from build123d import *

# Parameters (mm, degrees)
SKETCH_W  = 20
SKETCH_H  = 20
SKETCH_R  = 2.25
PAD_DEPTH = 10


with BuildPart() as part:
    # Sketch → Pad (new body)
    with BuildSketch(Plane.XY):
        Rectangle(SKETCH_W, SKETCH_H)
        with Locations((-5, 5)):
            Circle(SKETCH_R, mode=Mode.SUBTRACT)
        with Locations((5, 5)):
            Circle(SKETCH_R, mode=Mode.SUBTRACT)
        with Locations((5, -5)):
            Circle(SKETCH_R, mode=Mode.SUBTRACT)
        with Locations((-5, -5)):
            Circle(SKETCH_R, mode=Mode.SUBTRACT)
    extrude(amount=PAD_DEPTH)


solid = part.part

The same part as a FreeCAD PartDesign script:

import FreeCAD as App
import Part
import Sketcher

V = App.Vector

doc = App.newDocument("Part")
params = doc.addObject("Spreadsheet::Sheet", "Params")
for row, (alias, value) in enumerate([
    ("sketch1_diameter", "4.5 mm"),
    ("sketch1_width", "20 mm"),
    ("pad1_length", "10 mm"),
], start=1):
    params.set(f"A{row}", alias)
    params.set(f"B{row}", "=" + value)
    params.setAlias(f"B{row}", alias)

body = doc.addObject("PartDesign::Body", "Body")

sketch1 = body.newObject("Sketcher::SketchObject", "Sketch")
sketch1.AttachmentSupport = (doc.getObject("XY_Plane"), [""])
sketch1.MapMode = "FlatFace"
sketch1.addGeometry([
    Part.LineSegment(V(-10, 10, 0), V(-10, -10, 0)),
    Part.LineSegment(V(-10, -10, 0), V(10, -10, 0)),
    Part.LineSegment(V(10, -10, 0), V(10, 10, 0)),
    Part.LineSegment(V(10, 10, 0), V(-10, 10, 0)),
    Part.Circle(V(-5, -5, 0), V(0, 0, 1), 2.25),
    Part.Circle(V(5, -5, 0), V(0, 0, 1), 2.25),
    Part.Circle(V(-5, 5, 0), V(0, 0, 1), 2.25),
    Part.Circle(V(5, 5, 0), V(0, 0, 1), 2.25),
], False)
sketch1.addConstraint([
    Sketcher.Constraint("Coincident", 0, 2, 1, 1),
    Sketcher.Constraint("Coincident", 1, 2, 2, 1),
    Sketcher.Constraint("Coincident", 2, 2, 3, 1),
    Sketcher.Constraint("Coincident", 3, 2, 0, 1),
    Sketcher.Constraint("Vertical", 0),
    Sketcher.Constraint("Horizontal", 1),
    Sketcher.Constraint("Vertical", 2),
    Sketcher.Constraint("Horizontal", 3),
    Sketcher.Constraint("Equal", 4, 5),
    Sketcher.Constraint("Equal", 5, 6),
    Sketcher.Constraint("Equal", 6, 7),
    Sketcher.Constraint("Symmetric", 5, 3, 6, 3, -1, 1),
    Sketcher.Constraint("Symmetric", 4, 3, 7, 3, -1, 1),
    Sketcher.Constraint("Symmetric", 0, 2, 2, 2, -1, 1),
    Sketcher.Constraint("Symmetric", 4, 3, 5, 3, -2),
    Sketcher.Constraint("Equal", 3, 0),
    Sketcher.Constraint("Diameter", 4, 4.5),
    Sketcher.Constraint("DistanceX", 1, 1, 1, 2, 20.0),
    Sketcher.Constraint("DistanceX", 4, 3, -1, 1, 5.0),
    Sketcher.Constraint("DistanceY", 4, 3, -1, 1, 5.0),
])
sketch1.setExpression("Constraints[16]", "Params.sketch1_diameter")
sketch1.setExpression("Constraints[17]", "Params.sketch1_width")
pad1 = body.newObject("PartDesign::Pad", "Pad")
pad1.Profile = sketch1
pad1.setExpression("Length", "Params.pad1_length")

doc.recompute()
